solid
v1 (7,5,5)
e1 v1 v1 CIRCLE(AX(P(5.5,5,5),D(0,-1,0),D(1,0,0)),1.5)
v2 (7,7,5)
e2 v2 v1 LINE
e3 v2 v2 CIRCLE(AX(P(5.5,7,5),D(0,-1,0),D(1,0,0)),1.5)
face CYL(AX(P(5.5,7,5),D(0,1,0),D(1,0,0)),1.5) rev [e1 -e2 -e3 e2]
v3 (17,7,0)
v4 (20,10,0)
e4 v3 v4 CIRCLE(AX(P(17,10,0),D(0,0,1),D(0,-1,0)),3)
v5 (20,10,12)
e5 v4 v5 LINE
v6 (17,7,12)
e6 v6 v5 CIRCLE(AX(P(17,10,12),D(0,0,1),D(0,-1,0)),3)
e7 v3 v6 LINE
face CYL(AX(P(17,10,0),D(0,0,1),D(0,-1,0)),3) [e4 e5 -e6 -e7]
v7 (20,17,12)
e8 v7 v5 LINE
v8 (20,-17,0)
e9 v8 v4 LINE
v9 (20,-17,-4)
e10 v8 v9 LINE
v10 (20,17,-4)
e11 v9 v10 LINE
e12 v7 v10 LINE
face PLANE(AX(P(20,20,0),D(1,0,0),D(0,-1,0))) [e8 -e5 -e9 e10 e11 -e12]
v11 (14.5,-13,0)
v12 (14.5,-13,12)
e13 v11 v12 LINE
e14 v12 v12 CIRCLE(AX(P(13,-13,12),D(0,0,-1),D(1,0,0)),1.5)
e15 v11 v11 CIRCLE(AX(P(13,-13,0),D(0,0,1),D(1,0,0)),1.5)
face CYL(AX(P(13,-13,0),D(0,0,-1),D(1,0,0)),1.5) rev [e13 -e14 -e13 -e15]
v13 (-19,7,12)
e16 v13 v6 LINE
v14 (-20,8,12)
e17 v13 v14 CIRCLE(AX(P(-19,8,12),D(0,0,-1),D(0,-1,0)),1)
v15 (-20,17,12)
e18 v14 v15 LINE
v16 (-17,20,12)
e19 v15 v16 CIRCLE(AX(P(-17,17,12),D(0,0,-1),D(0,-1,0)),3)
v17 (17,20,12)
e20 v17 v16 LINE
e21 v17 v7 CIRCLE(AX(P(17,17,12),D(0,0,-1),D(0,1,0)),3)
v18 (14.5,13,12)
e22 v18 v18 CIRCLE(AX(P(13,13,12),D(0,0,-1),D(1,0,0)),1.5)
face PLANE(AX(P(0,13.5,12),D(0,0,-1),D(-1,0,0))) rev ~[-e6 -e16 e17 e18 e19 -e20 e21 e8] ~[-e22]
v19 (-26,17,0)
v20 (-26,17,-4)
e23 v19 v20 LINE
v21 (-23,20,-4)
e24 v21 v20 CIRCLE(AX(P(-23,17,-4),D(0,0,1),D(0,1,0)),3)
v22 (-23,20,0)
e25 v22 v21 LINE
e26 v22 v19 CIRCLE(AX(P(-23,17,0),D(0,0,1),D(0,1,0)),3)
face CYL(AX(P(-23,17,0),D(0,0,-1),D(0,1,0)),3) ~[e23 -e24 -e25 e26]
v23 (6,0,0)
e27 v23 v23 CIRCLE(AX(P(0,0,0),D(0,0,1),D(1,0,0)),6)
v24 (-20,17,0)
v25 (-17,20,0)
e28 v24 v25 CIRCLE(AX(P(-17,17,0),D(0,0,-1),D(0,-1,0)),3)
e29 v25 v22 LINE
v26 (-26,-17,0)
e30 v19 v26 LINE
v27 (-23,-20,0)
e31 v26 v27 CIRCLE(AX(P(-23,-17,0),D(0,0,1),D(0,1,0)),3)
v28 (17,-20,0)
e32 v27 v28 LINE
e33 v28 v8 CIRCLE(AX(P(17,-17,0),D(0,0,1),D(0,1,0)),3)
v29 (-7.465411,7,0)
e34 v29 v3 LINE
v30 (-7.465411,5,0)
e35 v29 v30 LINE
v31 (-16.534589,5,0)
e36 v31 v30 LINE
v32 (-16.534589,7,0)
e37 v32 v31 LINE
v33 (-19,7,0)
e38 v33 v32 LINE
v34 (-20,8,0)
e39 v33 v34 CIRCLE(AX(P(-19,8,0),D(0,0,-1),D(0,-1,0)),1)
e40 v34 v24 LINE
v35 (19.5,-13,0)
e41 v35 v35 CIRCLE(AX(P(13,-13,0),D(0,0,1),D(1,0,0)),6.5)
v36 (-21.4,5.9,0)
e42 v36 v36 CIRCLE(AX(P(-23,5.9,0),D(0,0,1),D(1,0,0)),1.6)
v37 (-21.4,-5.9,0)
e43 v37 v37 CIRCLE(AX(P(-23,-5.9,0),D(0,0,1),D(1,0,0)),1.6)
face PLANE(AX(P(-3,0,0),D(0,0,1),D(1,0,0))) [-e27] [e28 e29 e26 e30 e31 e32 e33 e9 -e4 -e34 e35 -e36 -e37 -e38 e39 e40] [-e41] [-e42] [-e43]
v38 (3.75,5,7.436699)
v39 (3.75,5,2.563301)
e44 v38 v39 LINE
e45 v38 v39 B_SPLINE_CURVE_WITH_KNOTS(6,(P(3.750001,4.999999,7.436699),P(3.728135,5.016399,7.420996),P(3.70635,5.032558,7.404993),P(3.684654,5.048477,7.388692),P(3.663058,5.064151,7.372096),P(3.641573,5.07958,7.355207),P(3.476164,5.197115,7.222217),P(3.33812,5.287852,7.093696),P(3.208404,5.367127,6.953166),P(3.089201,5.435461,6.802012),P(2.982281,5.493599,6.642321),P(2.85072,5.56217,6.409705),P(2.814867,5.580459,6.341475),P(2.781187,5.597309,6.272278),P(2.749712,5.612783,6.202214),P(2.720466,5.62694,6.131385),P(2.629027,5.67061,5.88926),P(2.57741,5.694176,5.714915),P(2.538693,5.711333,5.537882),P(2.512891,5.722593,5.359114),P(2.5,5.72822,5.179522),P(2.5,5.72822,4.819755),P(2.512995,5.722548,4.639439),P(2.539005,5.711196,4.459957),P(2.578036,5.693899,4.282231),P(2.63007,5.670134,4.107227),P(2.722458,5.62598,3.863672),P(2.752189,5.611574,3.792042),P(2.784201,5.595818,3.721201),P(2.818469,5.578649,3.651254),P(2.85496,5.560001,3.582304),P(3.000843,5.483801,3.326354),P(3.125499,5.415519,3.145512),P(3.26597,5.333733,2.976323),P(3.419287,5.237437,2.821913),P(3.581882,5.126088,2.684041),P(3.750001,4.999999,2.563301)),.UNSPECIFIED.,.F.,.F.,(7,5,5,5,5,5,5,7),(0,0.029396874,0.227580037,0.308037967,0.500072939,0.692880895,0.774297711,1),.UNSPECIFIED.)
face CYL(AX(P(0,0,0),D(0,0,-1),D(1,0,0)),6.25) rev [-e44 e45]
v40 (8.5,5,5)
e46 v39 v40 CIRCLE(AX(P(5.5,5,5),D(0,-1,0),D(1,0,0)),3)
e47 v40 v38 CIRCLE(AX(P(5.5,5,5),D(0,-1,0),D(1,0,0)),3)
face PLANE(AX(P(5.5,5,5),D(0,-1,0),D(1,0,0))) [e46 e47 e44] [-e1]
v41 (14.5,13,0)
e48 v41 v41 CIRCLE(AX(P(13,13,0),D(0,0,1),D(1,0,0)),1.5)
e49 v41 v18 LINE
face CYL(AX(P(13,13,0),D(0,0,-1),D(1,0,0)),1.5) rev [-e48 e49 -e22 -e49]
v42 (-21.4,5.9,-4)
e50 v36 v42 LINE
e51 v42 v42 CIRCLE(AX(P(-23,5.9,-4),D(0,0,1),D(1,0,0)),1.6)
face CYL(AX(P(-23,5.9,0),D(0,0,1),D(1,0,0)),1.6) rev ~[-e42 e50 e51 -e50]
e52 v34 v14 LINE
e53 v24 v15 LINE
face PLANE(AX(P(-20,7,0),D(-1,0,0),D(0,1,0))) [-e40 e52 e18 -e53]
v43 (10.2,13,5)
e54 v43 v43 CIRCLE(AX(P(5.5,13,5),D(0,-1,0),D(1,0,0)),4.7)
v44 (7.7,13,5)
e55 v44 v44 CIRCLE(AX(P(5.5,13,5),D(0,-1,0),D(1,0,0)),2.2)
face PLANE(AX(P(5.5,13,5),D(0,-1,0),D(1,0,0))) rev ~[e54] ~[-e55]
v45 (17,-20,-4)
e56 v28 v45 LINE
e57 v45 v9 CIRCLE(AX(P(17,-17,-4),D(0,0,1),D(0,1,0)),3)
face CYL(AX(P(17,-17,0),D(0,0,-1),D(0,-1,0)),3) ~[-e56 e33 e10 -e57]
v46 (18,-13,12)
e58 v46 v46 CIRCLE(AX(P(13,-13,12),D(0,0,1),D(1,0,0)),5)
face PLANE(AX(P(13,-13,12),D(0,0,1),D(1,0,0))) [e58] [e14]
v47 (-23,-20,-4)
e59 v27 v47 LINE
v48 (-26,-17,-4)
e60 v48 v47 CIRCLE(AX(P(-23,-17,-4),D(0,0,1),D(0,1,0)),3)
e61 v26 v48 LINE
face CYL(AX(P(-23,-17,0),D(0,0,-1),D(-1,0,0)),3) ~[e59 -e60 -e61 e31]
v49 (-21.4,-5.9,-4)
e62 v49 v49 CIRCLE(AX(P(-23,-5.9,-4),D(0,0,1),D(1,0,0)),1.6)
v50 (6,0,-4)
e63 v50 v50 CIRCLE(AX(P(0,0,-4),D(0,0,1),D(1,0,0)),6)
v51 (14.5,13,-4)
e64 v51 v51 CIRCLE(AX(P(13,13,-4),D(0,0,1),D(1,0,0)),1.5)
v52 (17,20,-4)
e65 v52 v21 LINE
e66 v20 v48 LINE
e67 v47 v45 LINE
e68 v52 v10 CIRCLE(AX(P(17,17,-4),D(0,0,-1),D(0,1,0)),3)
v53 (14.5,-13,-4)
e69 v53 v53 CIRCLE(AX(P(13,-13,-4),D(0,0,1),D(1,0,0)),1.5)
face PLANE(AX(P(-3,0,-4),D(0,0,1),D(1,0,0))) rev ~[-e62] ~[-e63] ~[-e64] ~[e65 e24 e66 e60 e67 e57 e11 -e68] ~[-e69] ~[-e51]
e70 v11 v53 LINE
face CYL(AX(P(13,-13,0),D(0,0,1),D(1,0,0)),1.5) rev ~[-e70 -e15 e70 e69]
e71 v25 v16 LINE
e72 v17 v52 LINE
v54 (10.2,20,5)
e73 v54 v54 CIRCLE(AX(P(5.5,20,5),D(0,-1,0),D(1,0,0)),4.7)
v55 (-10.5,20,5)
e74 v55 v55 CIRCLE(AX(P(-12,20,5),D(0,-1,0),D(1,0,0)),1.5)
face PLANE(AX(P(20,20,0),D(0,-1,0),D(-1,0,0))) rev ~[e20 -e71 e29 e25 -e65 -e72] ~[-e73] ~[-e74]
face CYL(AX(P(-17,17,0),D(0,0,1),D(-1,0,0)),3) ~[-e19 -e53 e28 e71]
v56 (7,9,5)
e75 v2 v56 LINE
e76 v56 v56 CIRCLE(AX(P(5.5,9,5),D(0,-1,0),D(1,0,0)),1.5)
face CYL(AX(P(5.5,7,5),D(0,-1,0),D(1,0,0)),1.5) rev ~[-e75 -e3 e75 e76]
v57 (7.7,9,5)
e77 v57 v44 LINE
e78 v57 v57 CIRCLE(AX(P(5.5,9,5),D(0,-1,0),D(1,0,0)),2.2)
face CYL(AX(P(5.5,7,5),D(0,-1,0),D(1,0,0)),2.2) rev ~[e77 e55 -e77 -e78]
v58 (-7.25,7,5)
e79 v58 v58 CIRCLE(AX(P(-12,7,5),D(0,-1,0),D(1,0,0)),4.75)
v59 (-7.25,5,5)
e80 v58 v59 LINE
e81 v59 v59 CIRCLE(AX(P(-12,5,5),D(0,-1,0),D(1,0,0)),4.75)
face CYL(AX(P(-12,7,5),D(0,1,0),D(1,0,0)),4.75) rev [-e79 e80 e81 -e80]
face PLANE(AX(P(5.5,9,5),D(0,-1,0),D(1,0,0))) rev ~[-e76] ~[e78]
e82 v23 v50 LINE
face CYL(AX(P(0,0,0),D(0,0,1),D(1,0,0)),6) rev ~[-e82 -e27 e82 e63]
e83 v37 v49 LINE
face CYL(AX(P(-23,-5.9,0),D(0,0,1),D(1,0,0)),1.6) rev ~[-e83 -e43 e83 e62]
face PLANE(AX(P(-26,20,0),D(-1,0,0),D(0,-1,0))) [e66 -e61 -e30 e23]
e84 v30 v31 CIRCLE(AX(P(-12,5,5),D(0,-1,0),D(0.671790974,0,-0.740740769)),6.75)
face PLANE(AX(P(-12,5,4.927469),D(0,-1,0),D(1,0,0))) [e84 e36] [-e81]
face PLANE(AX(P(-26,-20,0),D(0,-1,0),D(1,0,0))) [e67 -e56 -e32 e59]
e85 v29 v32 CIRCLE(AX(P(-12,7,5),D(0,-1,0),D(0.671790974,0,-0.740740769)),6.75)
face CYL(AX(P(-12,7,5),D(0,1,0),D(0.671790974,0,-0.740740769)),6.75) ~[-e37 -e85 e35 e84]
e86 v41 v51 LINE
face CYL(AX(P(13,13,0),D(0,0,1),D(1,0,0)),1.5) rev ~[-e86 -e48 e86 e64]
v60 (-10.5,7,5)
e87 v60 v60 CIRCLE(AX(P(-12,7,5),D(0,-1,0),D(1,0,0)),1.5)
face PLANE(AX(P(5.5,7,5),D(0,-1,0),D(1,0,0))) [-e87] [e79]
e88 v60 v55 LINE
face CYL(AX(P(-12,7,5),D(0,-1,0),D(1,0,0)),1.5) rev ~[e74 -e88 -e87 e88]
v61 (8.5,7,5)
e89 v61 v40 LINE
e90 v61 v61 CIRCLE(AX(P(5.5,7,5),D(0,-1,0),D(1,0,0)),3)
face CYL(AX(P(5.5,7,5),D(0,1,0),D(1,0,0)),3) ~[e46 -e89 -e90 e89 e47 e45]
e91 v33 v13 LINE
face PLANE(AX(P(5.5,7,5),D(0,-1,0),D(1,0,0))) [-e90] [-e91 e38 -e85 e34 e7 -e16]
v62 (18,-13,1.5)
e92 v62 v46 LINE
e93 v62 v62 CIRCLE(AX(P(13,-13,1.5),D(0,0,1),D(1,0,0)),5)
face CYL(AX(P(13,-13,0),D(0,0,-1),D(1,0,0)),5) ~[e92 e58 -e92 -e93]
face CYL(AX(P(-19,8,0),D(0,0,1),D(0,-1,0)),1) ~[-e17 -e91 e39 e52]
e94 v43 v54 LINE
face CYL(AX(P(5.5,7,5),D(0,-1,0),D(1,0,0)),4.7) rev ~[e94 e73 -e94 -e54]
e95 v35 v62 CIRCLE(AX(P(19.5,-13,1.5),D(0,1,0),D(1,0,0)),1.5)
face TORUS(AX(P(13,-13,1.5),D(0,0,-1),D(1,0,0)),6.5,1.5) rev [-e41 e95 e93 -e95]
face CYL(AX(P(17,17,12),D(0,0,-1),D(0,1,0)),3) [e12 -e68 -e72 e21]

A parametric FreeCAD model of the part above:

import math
import FreeCAD as App
import Part
import Sketcher


def edges_at(feature, points):
    """Names of the edges that pass closest to the given points."""
    edges = feature.Shape.Edges
    near = lambda p: min(range(len(edges)), key=lambda i: edges[i].distToShape(Part.Vertex(*p))[0])
    return sorted({f"Edge{near(p) + 1}" for p in points})


def add_polygon(sketch, points):
    """Adds a closed chain of lines whose ends are joined by coincident constraints."""
    first, n = sketch.GeometryCount, len(points)
    for a, b in zip(points, points[1:] + points[:1]):
        sketch.addGeometry(Part.LineSegment(App.Vector(*a, 0), App.Vector(*b, 0)), False)
    for i in range(n):
        sketch.addConstraint(Sketcher.Constraint("Coincident", first + i, 2, first + (i + 1) % n, 1))

doc = App.newDocument("Part")
body = doc.addObject("PartDesign::Body", "Body")

# Sketch on XY plane
sketch1 = doc.addObject("Sketcher::SketchObject", "Sketch")
body.addObject(sketch1)
sketch1.AttachmentSupport = (doc.XY_Plane, [""])
sketch1.MapMode = "FlatFace"
add_polygon(sketch1, [(-26, 20), (-26, -20), (20, -20), (20, 20)])  # lines 0-3
sketch1.addGeometry(Part.Circle(App.Vector(-23, -5.9, 0), App.Vector(0, 0, 1), 1.6), False)  # 4
sketch1.addGeometry(Part.Circle(App.Vector(-23, 5.9, 0), App.Vector(0, 0, 1), 1.6), False)  # 5
sketch1.addGeometry(Part.Circle(App.Vector(0, 0, 0), App.Vector(0, 0, 1), 6), False)  # 6
sketch1.addConstraint(Sketcher.Constraint("Vertical", 0))
sketch1.addConstraint(Sketcher.Constraint("Horizontal", 1))
sketch1.addConstraint(Sketcher.Constraint("Vertical", 2))
sketch1.addConstraint(Sketcher.Constraint("Horizontal", 3))
sketch1.addConstraint(Sketcher.Constraint("Coincident", 6, 3, -1, 1))
sketch1.addConstraint(Sketcher.Constraint("Equal", 4, 5))
sketch1.addConstraint(Sketcher.Constraint("Symmetric", 4, 3, 5, 3, -1))
sketch1.addConstraint(Sketcher.Constraint("Diameter", 6, 12.0))
sketch1.addConstraint(Sketcher.Constraint("Diameter", 4, 3.2))
sketch1.addConstraint(Sketcher.Constraint("DistanceX", 1, 1, 1, 2, 46.0))
sketch1.addConstraint(Sketcher.Constraint("DistanceY", 0, 2, 0, 1, 40.0))
sketch1.addConstraint(Sketcher.Constraint("DistanceX", 4, 3, -1, 1, 23.0))
sketch1.addConstraint(Sketcher.Constraint("DistanceX", 0, 2, -1, 1, 26.0))
sketch1.addConstraint(Sketcher.Constraint("DistanceY", 0, 2, -1, 1, 20.0))
sketch1.addConstraint(Sketcher.Constraint("DistanceY", 4, 3, -1, 1, 5.9))
pad1 = doc.addObject("PartDesign::Pad", "Pad")
body.addObject(pad1)
pad1.Profile = sketch1
pad1.Length = 4
pad1.Reversed = True

# Sketch on XY plane
sketch2 = doc.addObject("Sketcher::SketchObject", "Sketch001")
body.addObject(sketch2)
sketch2.AttachmentSupport = (doc.XY_Plane, [""])
sketch2.MapMode = "FlatFace"
sketch2.addGeometry(Part.Circle(App.Vector(13, -13, 0), App.Vector(0, 0, 1), 5), False)  # 0
add_polygon(sketch2, [(20, 20), (-20, 20), (-20, 7), (20, 7)])  # lines 1-4
sketch2.addConstraint(Sketcher.Constraint("Horizontal", 1))
sketch2.addConstraint(Sketcher.Constraint("Vertical", 2))
sketch2.addConstraint(Sketcher.Constraint("Horizontal", 3))
sketch2.addConstraint(Sketcher.Constraint("Vertical", 4))
sketch2.addConstraint(Sketcher.Constraint("Diameter", 0, 10.0))
sketch2.addConstraint(Sketcher.Constraint("DistanceX", 1, 2, 1, 1, 40.0))
sketch2.addConstraint(Sketcher.Constraint("DistanceY", 2, 2, 2, 1, 13.0))
sketch2.addConstraint(Sketcher.Constraint("DistanceX", -1, 1, 0, 3, 13.0))
sketch2.addConstraint(Sketcher.Constraint("DistanceY", 0, 3, -1, 1, 13.0))
sketch2.addConstraint(Sketcher.Constraint("DistanceX", 1, 2, -1, 1, 20.0))
sketch2.addConstraint(Sketcher.Constraint("DistanceY", -1, 1, 1, 2, 20.0))
pad2 = doc.addObject("PartDesign::Pad", "Pad001")
body.addObject(pad2)
pad2.Profile = sketch2
pad2.Length = 12

# Sketch on XZ plane
sketch3 = doc.addObject("Sketcher::SketchObject", "Sketch002")
body.addObject(sketch3)
sketch3.AttachmentSupport = (doc.XZ_Plane, [""])
sketch3.MapMode = "FlatFace"
sketch3.AttachmentOffset = App.Placement(App.Vector(0, 0, -7), App.Rotation())
sketch3.addGeometry(Part.Circle(App.Vector(5.5, 5, 0), App.Vector(0, 0, 1), 4.7), False)
sketch3.addConstraint(Sketcher.Constraint("Diameter", 0, 9.4))
sketch3.addConstraint(Sketcher.Constraint("DistanceY", -1, 1, 0, 3, 5.0))
sketch3.addConstraint(Sketcher.Constraint("DistanceX", -1, 1, 0, 3, 5.5))
pocket1 = doc.addObject("PartDesign::Pocket", "Pocket")
body.addObject(pocket1)
pocket1.Profile = sketch3
pocket1.Type = "ThroughAll"

# Sketch on XZ plane
sketch4 = doc.addObject("Sketcher::SketchObject", "Sketch003")
body.addObject(sketch4)
sketch4.AttachmentSupport = (doc.XZ_Plane, [""])
sketch4.MapMode = "FlatFace"
sketch4.AttachmentOffset = App.Placement(App.Vector(0, 0, -7), App.Rotation())
sketch4.addGeometry(Part.Circle(App.Vector(-12, 5, 0), App.Vector(0, 0, 1), 1.5), False)
sketch4.addConstraint(Sketcher.Constraint("Diameter", 0, 3.0))
sketch4.addConstraint(Sketcher.Constraint("DistanceX", 0, 3, -1, 1, 12.0))
sketch4.addConstraint(Sketcher.Constraint("DistanceY", -1, 1, 0, 3, 5.0))
pocket2 = doc.addObject("PartDesign::Pocket", "Pocket001")
body.addObject(pocket2)
pocket2.Profile = sketch4
pocket2.Type = "ThroughAll"

# Sketch on XY plane
sketch5 = doc.addObject("Sketcher::SketchObject", "Sketch004")
body.addObject(sketch5)
sketch5.AttachmentSupport = (doc.XY_Plane, [""])
sketch5.MapMode = "FlatFace"
sketch5.addGeometry(Part.Circle(App.Vector(13, -13, 0), App.Vector(0, 0, 1), 1.5), False)
sketch5.addGeometry(Part.Circle(App.Vector(13, 13, 0), App.Vector(0, 0, 1), 1.5), False)
sketch5.addConstraint(Sketcher.Constraint("Equal", 0, 1))
sketch5.addConstraint(Sketcher.Constraint("Symmetric", 0, 3, 1, 3, -1))
sketch5.addConstraint(Sketcher.Constraint("Diameter", 0, 3.0))
sketch5.addConstraint(Sketcher.Constraint("DistanceX", -1, 1, 0, 3, 13.0))
sketch5.addConstraint(Sketcher.Constraint("DistanceY", 0, 3, -1, 1, 13.0))
pocket3 = doc.addObject("PartDesign::Pocket", "Pocket002")
body.addObject(pocket3)
pocket3.Profile = sketch5
pocket3.Type = "ThroughAll"
pocket3.Midplane = True

# Sketch on XZ plane
sketch6 = doc.addObject("Sketcher::SketchObject", "Sketch005")
body.addObject(sketch6)
sketch6.AttachmentSupport = (doc.XZ_Plane, [""])
sketch6.MapMode = "FlatFace"
sketch6.AttachmentOffset = App.Placement(App.Vector(0, 0, -7), App.Rotation())
sketch6.addGeometry(Part.Circle(App.Vector(5.5, 5, 0), App.Vector(0, 0, 1), 4.7), False)
sketch6.addGeometry(Part.Circle(App.Vector(5.5, 5, 0), App.Vector(0, 0, 1), 2.2), False)
sketch6.addConstraint(Sketcher.Constraint("Coincident", 1, 3, 0, 3))
sketch6.addConstraint(Sketcher.Constraint("Diameter", 0, 9.4))
sketch6.addConstraint(Sketcher.Constraint("Diameter", 1, 4.4))
sketch6.addConstraint(Sketcher.Constraint("DistanceY", -1, 1, 0, 3, 5.0))
sketch6.addConstraint(Sketcher.Constraint("DistanceX", -1, 1, 0, 3, 5.5))
pad3 = doc.addObject("PartDesign::Pad", "Pad002")
body.addObject(pad3)
pad3.Profile = sketch6
pad3.Length = 6
pad3.Reversed = True

# Sketch on XZ plane
sketch7 = doc.addObject("Sketcher::SketchObject", "Sketch006")
body.addObject(sketch7)
sketch7.AttachmentSupport = (doc.XZ_Plane, [""])
sketch7.MapMode = "FlatFace"
sketch7.AttachmentOffset = App.Placement(App.Vector(0, 0, -7), App.Rotation())
sketch7.addGeometry(Part.Circle(App.Vector(5.5, 5, 0), App.Vector(0, 0, 1), 3), False)
sketch7.addGeometry(Part.Circle(App.Vector(5.5, 5, 0), App.Vector(0, 0, 1), 1.5), False)
sketch7.addConstraint(Sketcher.Constraint("Coincident", 1, 3, 0, 3))
sketch7.addConstraint(Sketcher.Constraint("Diameter", 0, 6.0))
sketch7.addConstraint(Sketcher.Constraint("Diameter", 1, 3.0))
sketch7.addConstraint(Sketcher.Constraint("DistanceY", -1, 1, 0, 3, 5.0))
sketch7.addConstraint(Sketcher.Constraint("DistanceX", -1, 1, 0, 3, 5.5))
pad4 = doc.addObject("PartDesign::Pad", "Pad003")
body.addObject(pad4)
pad4.Profile = sketch7
pad4.Type = "TwoLengths"
pad4.Length = 2
pad4.Length2 = 2

# Sketch on XZ plane
sketch8 = doc.addObject("Sketcher::SketchObject", "Sketch007")
body.addObject(sketch8)
sketch8.AttachmentSupport = (doc.XZ_Plane, [""])
sketch8.MapMode = "FlatFace"
sketch8.AttachmentOffset = App.Placement(App.Vector(0, 0, -7), App.Rotation())
sketch8.addGeometry(Part.ArcOfCircle(Part.Circle(App.Vector(-12, 5, 0), App.Vector(0, 0, 1), 6.7), math.radians(-48), math.radians(228)), False)
sketch8.addGeometry(Part.LineSegment(App.Vector(-16.5, 0, 0), App.Vector(-7.5, 0, 0)), False)
sketch8.addGeometry(Part.Circle(App.Vector(-12, 5, 0), App.Vector(0, 0, 1), 4.8), False)
sketch8.addConstraint(Sketcher.Constraint("Coincident", 0, 1, 1, 2))
sketch8.addConstraint(Sketcher.Constraint("Coincident", 1, 1, 0, 2))
sketch8.addConstraint(Sketcher.Constraint("Horizontal", 1))
sketch8.addConstraint(Sketcher.Constraint("Coincident", 2, 3, 0, 3))
sketch8.addConstraint(Sketcher.Constraint("PointOnObject", 0, 1, -1))
sketch8.addConstraint(Sketcher.Constraint("Diameter", 2, 9.5))
sketch8.addConstraint(Sketcher.Constraint("Radius", 0, 6.75))
sketch8.addConstraint(Sketcher.Constraint("DistanceX", 0, 3, -1, 1, 12.0))
sketch8.addConstraint(Sketcher.Constraint("DistanceY", -1, 1, 0, 3, 5.0))
pad5 = doc.addObject("PartDesign::Pad", "Pad004")
body.addObject(pad5)
pad5.Profile = sketch8
pad5.Length = 2

# Sketch on XY plane
sketch9 = doc.addObject("Sketcher::SketchObject", "Sketch008")
body.addObject(sketch9)
sketch9.AttachmentSupport = (doc.XY_Plane, [""])
sketch9.MapMode = "FlatFace"
sketch9.addGeometry(Part.Circle(App.Vector(0, 0, 0), App.Vector(0, 0, 1), 6), False)
sketch9.addConstraint(Sketcher.Constraint("Coincident", 0, 3, -1, 1))
sketch9.addConstraint(Sketcher.Constraint("Diameter", 0, 12.5))
pocket4 = doc.addObject("PartDesign::Pocket", "Pocket003")
body.addObject(pocket4)
pocket4.Profile = sketch9
pocket4.Type = "ThroughAll"
pocket4.Reversed = True
doc.recompute()

fillet = doc.addObject("PartDesign::Fillet", "Fillet")
body.addObject(fillet)
fillet.Base = (pocket4, edges_at(pocket4, [(8, -13, 0)]))
fillet.Radius = 1.5
doc.recompute()

fillet2 = doc.addObject("PartDesign::Fillet", "Fillet001")
body.addObject(fillet2)
fillet2.Base = (fillet, edges_at(fillet, [
    (-26, -20, -2),
    (20, -20, -2),
    (20, 20, 4),
    (-26, 20, -2),
    (20, 7, 6),
    (-20, 20, 6),
]))
fillet2.Radius = 3
doc.recompute()

fillet3 = doc.addObject("PartDesign::Fillet", "Fillet002")
body.addObject(fillet3)
fillet3.Base = (fillet2, edges_at(fillet2, [(-20, 7, 6)]))
fillet3.Radius = 1

doc.recompute()
